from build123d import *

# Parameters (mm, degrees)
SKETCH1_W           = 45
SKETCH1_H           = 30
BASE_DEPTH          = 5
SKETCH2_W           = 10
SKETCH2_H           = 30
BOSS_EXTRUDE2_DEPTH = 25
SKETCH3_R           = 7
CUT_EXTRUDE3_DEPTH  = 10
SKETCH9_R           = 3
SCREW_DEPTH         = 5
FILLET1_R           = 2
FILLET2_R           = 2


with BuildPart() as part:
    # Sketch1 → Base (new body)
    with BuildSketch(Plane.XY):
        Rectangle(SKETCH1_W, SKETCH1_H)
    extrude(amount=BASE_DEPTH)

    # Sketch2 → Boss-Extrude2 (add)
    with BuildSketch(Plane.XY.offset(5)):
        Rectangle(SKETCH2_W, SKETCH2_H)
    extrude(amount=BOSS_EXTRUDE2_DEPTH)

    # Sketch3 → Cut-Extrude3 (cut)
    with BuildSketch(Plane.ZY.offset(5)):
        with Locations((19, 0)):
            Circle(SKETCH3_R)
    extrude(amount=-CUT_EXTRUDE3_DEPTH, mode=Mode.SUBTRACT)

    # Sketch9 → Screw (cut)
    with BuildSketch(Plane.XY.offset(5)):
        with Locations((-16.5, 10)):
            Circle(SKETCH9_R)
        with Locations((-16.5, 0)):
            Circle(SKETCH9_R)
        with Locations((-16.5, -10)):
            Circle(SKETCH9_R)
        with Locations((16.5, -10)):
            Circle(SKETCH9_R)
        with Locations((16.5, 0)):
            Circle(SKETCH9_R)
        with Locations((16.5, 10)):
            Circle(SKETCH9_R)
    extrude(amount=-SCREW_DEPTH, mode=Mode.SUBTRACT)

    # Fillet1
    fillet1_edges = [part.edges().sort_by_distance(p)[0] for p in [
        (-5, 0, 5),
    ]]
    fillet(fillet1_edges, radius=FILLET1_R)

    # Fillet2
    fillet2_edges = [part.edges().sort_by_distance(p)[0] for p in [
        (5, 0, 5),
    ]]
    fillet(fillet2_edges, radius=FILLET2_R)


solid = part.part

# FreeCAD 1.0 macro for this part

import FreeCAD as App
import Part
import Sketcher

V = App.Vector


def edges_at(feature, points):
    """Names of the edges that pass closest to the given points."""
    edges = feature.Shape.Edges
    near = lambda p: min(range(len(edges)), key=lambda i: edges[i].distToShape(Part.Vertex(*p))[0])
    return sorted({f"Edge{near(p) + 1}" for p in points})


def add_polygon(sketch, points):
    """Adds a closed chain of lines whose ends are joined by coincident constraints."""
    first, n = sketch.GeometryCount, len(points)
    for a, b in zip(points, points[1:] + points[:1]):
        sketch.addGeometry(Part.LineSegment(App.Vector(*a, 0), App.Vector(*b, 0)), False)
    for i in range(n):
        sketch.addConstraint(Sketcher.Constraint("Coincident", first + i, 2, first + (i + 1) % n, 1))

doc = App.newDocument("Part")
body = doc.addObject("PartDesign::Body", "Body")

# Sketch on XY plane
sketch1 = body.newObject("Sketcher::SketchObject", "Sketch")
sketch1.AttachmentSupport = (doc.getObject("XY_Plane"), [""])
sketch1.MapMode = "FlatFace"
add_polygon(sketch1, [(-22.5, 15), (-22.5, -15), (22.5, -15), (22.5, 15)])  # lines 0-3
sketch1.addConstraint(Sketcher.Constraint("Vertical", 0))
sketch1.addConstraint(Sketcher.Constraint("Horizontal", 1))
sketch1.addConstraint(Sketcher.Constraint("Vertical", 2))
sketch1.addConstraint(Sketcher.Constraint("Horizontal", 3))
sketch1.addConstraint(Sketcher.Constraint("Symmetric", 0, 2, 2, 2, -1, 1))
sketch1.addConstraint(Sketcher.Constraint("DistanceX", 1, 1, 1, 2, 45.0))
sketch1.addConstraint(Sketcher.Constraint("DistanceY", 0, 2, 0, 1, 30.0))
pad1 = body.newObject("PartDesign::Pad", "Pad")
pad1.Profile = sketch1
pad1.Length = 5

# Sketch on XY plane
sketch2 = body.newObject("Sketcher::SketchObject", "Sketch001")
sketch2.AttachmentSupport = (doc.getObject("XY_Plane"), [""])
sketch2.MapMode = "FlatFace"
sketch2.AttachmentOffset = App.Placement(V(0, 0, 5), App.Rotation())
add_polygon(sketch2, [(-5, 15), (-5, -15), (5, -15), (5, 15)])  # lines 0-3
sketch2.addConstraint(Sketcher.Constraint("Vertical", 0))
sketch2.addConstraint(Sketcher.Constraint("Horizontal", 1))
sketch2.addConstraint(Sketcher.Constraint("Vertical", 2))
sketch2.addConstraint(Sketcher.Constraint("Horizontal", 3))
sketch2.addConstraint(Sketcher.Constraint("Symmetric", 0, 2, 2, 2, -1, 1))
sketch2.addConstraint(Sketcher.Constraint("DistanceX", 1, 1, 1, 2, 10.0))
sketch2.addConstraint(Sketcher.Constraint("DistanceY", 0, 2, 0, 1, 30.0))
pad2 = body.newObject("PartDesign::Pad", "Pad001")
pad2.Profile = sketch2
pad2.Length = 25

# Sketch on YZ plane
sketch3 = body.newObject("Sketcher::SketchObject", "Sketch002")
sketch3.AttachmentSupport = (doc.getObject("YZ_Plane"), [""])
sketch3.MapMode = "FlatFace"
sketch3.AttachmentOffset = App.Placement(V(0, 0, -5), App.Rotation())
sketch3.addGeometry(Part.Circle(V(0, 19, 0), V(0, 0, 1), 7), False)
sketch3.addConstraint(Sketcher.Constraint("PointOnObject", 0, 3, -2))
sketch3.addConstraint(Sketcher.Constraint("Diameter", 0, 14.0))
sketch3.addConstraint(Sketcher.Constraint("DistanceY", -1, 1, 0, 3, 19.0))
pocket1 = body.newObject("PartDesign::Pocket", "Pocket")
pocket1.Profile = sketch3
pocket1.Length = 10
pocket1.Reversed = True

# Sketch on XY plane
sketch4 = body.newObject("Sketcher::SketchObject", "Sketch003")
sketch4.AttachmentSupport = (doc.getObject("XY_Plane"), [""])
sketch4.MapMode = "FlatFace"
sketch4.AttachmentOffset = App.Placement(V(0, 0, 5), App.Rotation())
sketch4.addGeometry(Part.Circle(V(-16.5, 10, 0), V(0, 0, 1), 3), False)
sketch4.addGeometry(Part.Circle(V(-16.5, 0, 0), V(0, 0, 1), 3), False)
sketch4.addGeometry(Part.Circle(V(-16.5, -10, 0), V(0, 0, 1), 3), False)
sketch4.addGeometry(Part.Circle(V(16.5, -10, 0), V(0, 0, 1), 3), False)
sketch4.addGeometry(Part.Circle(V(16.5, 0, 0), V(0, 0, 1), 3), False)
sketch4.addGeometry(Part.Circle(V(16.5, 10, 0), V(0, 0, 1), 3), False)
sketch4.addConstraint(Sketcher.Constraint("Equal", 0, 1))
sketch4.addConstraint(Sketcher.Constraint("Equal", 1, 2))
sketch4.addConstraint(Sketcher.Constraint("Equal", 2, 3))
sketch4.addConstraint(Sketcher.Constraint("Equal", 3, 4))
sketch4.addConstraint(Sketcher.Constraint("Equal", 4, 5))
sketch4.addConstraint(Sketcher.Constraint("Symmetric", 0, 3, 3, 3, -1, 1))
sketch4.addConstraint(Sketcher.Constraint("Symmetric", 1, 3, 4, 3, -1, 1))
sketch4.addConstraint(Sketcher.Constraint("Symmetric", 2, 3, 5, 3, -1, 1))
sketch4.addConstraint(Sketcher.Constraint("Symmetric", 2, 3, 3, 3, -2))
sketch4.addConstraint(Sketcher.Constraint("PointOnObject", 1, 3, -1))
sketch4.addConstraint(Sketcher.Constraint("Vertical", 0, 3, 1, 3))
sketch4.addConstraint(Sketcher.Constraint("Diameter", 0, 6.0))
sketch4.addConstraint(Sketcher.Constraint("DistanceY", -1, 1, 0, 3, 10.0))
sketch4.addConstraint(Sketcher.Constraint("DistanceX", 2, 3, 3, 3, 33.0))
pocket2 = body.newObject("PartDesign::Pocket", "Pocket001")
pocket2.Profile = sketch4
pocket2.Length = 5
doc.recompute()

fillet = body.newObject("PartDesign::Fillet", "Fillet")
fillet.Base = (pocket2, edges_at(pocket2, [(-5, 0, 5)]))
fillet.Radius = 2
doc.recompute()

fillet2 = body.newObject("PartDesign::Fillet", "Fillet001")
fillet2.Base = (fillet, edges_at(fillet, [(5, 0, 5)]))
fillet2.Radius = 2

doc.recompute()
